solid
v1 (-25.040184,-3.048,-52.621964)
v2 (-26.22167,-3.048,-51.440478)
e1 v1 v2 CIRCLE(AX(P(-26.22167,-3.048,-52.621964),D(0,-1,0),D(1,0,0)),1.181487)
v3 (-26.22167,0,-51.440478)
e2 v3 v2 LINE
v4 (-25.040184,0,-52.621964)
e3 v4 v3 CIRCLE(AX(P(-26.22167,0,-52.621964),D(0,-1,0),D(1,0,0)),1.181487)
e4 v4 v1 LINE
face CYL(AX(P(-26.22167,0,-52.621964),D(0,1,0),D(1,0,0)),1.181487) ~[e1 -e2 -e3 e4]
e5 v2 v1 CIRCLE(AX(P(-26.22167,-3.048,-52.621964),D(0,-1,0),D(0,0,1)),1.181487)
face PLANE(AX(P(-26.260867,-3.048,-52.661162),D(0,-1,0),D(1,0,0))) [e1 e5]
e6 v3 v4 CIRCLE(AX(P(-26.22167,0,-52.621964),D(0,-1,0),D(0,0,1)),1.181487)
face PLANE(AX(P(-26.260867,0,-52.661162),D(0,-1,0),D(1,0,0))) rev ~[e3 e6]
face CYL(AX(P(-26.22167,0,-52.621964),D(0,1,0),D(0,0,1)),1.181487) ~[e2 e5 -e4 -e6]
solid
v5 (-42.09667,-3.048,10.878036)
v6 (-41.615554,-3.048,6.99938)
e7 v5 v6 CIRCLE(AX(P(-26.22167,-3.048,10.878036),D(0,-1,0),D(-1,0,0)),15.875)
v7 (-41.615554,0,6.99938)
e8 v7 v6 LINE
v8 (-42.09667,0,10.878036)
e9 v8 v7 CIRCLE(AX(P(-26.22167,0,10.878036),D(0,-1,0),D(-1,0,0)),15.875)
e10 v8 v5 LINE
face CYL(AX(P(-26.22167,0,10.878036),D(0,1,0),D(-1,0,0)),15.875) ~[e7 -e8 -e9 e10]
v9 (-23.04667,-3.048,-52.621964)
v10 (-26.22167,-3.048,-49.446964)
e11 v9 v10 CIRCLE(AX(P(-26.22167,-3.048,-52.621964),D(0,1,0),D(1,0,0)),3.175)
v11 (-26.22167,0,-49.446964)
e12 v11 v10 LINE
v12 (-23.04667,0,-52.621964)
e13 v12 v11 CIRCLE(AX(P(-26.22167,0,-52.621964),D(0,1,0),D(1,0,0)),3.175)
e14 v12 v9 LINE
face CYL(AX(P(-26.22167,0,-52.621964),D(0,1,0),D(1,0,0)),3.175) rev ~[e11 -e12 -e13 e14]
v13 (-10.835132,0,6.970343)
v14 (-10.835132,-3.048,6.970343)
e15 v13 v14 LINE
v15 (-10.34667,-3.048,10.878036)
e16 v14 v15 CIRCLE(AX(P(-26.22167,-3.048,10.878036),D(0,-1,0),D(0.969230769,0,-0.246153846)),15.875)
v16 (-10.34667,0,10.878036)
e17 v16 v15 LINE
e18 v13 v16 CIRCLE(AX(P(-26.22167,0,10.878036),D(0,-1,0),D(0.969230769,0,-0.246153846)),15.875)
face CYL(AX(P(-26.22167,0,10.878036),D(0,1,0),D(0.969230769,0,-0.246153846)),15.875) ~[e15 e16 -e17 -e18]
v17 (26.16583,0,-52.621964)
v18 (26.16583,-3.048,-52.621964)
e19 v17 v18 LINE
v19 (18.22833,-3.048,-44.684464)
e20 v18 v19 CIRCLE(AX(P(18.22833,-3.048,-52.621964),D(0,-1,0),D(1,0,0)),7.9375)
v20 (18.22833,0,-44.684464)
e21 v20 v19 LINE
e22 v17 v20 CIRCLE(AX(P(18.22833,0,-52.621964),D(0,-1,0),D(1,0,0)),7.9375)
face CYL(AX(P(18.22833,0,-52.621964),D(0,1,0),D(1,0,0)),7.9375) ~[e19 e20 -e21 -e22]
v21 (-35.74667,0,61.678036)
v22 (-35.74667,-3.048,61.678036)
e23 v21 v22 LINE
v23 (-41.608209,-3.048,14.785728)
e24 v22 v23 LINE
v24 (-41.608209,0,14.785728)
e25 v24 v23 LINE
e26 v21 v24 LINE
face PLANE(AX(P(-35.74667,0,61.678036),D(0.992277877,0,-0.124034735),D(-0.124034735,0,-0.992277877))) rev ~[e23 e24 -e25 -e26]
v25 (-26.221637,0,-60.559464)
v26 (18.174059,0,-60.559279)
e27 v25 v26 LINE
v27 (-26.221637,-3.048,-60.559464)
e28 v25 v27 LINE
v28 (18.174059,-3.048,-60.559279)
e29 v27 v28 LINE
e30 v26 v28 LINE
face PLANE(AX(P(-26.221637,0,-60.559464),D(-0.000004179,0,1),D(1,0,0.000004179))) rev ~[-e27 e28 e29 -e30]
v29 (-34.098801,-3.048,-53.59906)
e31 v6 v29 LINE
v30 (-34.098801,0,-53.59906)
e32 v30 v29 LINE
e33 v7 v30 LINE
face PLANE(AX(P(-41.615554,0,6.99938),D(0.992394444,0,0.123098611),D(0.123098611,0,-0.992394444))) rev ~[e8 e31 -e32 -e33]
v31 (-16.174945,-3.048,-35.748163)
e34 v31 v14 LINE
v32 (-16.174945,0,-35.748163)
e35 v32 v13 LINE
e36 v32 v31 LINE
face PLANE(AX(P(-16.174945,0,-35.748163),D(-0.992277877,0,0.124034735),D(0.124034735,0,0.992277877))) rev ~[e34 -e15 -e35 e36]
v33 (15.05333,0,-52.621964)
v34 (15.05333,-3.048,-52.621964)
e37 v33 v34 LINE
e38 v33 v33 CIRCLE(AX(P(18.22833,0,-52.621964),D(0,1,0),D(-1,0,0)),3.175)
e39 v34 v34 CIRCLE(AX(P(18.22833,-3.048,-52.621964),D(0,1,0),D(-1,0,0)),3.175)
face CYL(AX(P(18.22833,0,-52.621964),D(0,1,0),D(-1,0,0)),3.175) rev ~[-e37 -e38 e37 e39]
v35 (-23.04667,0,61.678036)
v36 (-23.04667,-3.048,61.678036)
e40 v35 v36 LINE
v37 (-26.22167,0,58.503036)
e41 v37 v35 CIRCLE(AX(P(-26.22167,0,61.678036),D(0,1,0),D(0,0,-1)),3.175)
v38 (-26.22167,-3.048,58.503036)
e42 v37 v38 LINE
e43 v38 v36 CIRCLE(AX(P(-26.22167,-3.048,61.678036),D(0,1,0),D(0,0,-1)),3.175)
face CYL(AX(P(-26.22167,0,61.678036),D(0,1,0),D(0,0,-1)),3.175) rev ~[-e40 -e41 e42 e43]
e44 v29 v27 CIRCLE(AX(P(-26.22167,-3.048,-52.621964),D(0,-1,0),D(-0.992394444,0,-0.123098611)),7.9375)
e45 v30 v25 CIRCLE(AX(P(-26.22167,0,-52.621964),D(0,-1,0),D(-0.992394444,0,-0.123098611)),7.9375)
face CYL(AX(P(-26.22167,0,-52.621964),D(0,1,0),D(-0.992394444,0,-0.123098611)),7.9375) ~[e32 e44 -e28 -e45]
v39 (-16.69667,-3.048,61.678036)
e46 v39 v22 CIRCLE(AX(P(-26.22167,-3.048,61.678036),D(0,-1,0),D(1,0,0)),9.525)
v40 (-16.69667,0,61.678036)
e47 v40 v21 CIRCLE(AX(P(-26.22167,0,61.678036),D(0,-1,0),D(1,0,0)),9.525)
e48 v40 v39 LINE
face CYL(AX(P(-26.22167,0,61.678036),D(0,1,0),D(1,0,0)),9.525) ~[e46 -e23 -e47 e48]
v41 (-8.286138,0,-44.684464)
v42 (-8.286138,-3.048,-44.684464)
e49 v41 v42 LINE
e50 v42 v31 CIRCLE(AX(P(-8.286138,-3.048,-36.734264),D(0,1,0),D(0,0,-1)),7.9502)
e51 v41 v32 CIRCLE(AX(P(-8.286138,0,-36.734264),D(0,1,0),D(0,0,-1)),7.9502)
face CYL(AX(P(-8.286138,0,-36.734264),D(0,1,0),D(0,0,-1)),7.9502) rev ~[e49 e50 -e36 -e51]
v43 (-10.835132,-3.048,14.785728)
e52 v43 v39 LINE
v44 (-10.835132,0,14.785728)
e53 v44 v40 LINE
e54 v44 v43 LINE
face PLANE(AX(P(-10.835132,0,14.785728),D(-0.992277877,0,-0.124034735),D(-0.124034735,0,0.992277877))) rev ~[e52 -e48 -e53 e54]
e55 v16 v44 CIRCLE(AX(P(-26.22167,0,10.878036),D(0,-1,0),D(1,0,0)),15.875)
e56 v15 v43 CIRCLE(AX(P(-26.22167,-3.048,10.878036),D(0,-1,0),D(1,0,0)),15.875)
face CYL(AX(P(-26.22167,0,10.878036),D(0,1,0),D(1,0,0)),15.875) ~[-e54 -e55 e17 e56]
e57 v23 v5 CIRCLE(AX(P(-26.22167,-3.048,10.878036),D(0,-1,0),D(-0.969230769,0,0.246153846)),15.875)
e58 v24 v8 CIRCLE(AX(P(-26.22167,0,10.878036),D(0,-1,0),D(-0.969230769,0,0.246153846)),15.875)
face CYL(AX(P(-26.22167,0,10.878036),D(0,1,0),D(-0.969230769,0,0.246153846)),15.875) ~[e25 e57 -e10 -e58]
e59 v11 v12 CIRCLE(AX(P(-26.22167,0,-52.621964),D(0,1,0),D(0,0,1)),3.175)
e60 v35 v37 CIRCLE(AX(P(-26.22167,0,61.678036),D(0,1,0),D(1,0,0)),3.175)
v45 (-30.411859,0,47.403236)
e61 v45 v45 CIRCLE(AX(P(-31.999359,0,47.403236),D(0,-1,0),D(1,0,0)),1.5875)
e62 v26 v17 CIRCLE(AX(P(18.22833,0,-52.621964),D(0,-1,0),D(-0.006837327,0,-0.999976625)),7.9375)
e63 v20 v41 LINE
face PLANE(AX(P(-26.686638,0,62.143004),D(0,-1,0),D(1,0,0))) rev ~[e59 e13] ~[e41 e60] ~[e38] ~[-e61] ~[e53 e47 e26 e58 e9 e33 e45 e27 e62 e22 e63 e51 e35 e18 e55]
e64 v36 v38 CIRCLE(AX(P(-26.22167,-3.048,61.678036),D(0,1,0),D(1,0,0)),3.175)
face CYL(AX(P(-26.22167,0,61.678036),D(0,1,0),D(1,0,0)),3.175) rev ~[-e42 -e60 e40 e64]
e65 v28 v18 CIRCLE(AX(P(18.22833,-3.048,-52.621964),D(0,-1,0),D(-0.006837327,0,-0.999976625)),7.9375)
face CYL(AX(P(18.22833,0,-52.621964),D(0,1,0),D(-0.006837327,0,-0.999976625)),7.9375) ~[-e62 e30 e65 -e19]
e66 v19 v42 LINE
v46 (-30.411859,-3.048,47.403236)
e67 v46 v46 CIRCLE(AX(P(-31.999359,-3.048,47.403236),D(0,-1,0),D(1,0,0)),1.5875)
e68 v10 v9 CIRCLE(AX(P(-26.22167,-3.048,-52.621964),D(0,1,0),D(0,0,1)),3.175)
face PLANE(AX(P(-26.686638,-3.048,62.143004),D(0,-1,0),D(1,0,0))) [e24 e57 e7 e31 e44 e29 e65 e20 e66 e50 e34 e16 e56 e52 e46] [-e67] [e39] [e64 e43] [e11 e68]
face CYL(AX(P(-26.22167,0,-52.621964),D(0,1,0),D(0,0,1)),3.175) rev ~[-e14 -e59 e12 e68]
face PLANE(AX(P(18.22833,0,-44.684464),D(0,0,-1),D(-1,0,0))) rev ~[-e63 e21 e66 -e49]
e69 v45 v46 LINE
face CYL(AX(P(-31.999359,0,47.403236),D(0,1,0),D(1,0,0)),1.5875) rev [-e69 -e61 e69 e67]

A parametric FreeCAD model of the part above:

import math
import FreeCAD as App
import Part
import Sketcher
from FreeCAD import Vector
Q = App.Units.Quantity

doc = App.newDocument("Part")
body = doc.addObject("PartDesign::Body", "Body")

sketch1 = doc.addObject("Sketcher::SketchObject", "Sketch")
body.addObject(sketch1)
sketch1.AttachmentSupport = (doc.XZ_Plane, [""])
sketch1.MapMode = "FlatFace"
sketch1.addGeometry([
    Part.ArcOfCircle(Part.Circle(Vector(-26.2, -52.6, 0), Vector(0, 0, 1), 7.9), math.radians(-173), math.radians(-90)),
    Part.LineSegment(Vector(-26.2, -60.6, 0), Vector(18.2, -60.6, 0)),
    Part.ArcOfCircle(Part.Circle(Vector(18.2, -52.6, 0), Vector(0, 0, 1), 7.9), math.radians(-90), math.radians(0)),
    Part.ArcOfCircle(Part.Circle(Vector(18.2, -52.6, 0), Vector(0, 0, 1), 7.9), math.radians(0), math.radians(90)),
    Part.LineSegment(Vector(18.2, -44.7, 0), Vector(-8.3, -44.7, 0)),
    Part.ArcOfCircle(Part.Circle(Vector(-8.3, -36.7, 0), Vector(0, 0, 1), 8), math.radians(173), math.radians(270)),
    Part.LineSegment(Vector(-16.2, -35.7, 0), Vector(-10.8, 7, 0)),
    Part.ArcOfCircle(Part.Circle(Vector(-26.2, 10.9, 0), Vector(0, 0, 1), 15.9), math.radians(-14.25), math.radians(0)),
    Part.ArcOfCircle(Part.Circle(Vector(-26.2, 10.9, 0), Vector(0, 0, 1), 15.9), math.radians(0), math.radians(14.25)),
    Part.LineSegment(Vector(-10.8, 14.8, 0), Vector(-16.7, 61.7, 0)),
    Part.ArcOfCircle(Part.Circle(Vector(-26.2, 61.7, 0), Vector(0, 0, 1), 9.5), math.radians(0), math.radians(180)),
    Part.LineSegment(Vector(-35.7, 61.7, 0), Vector(-41.6, 14.8, 0)),
    Part.ArcOfCircle(Part.Circle(Vector(-26.2, 10.9, 0), Vector(0, 0, 1), 15.9), math.radians(165.75), math.radians(180)),
    Part.ArcOfCircle(Part.Circle(Vector(-26.2, 10.9, 0), Vector(0, 0, 1), 15.9), math.radians(180), math.radians(194.14)),
    Part.LineSegment(Vector(-41.6, 7, 0), Vector(-34.1, -53.6, 0)),
    Part.ArcOfCircle(Part.Circle(Vector(-26.2, -52.6, 0), Vector(0, 0, 1), 3.2), math.radians(90), math.radians(360)),
    Part.ArcOfCircle(Part.Circle(Vector(-26.2, -52.6, 0), Vector(0, 0, 1), 3.2), math.radians(0), math.radians(90)),
    Part.Circle(Vector(18.2, -52.6, 0), Vector(0, 0, 1), 3.2),
    Part.Circle(Vector(-32, 47.4, 0), Vector(0, 0, 1), 1.6),
    Part.ArcOfCircle(Part.Circle(Vector(-26.2, 61.7, 0), Vector(0, 0, 1), 3.2), math.radians(0), math.radians(270)),
    Part.ArcOfCircle(Part.Circle(Vector(-26.2, 61.7, 0), Vector(0, 0, 1), 3.2), math.radians(-90), math.radians(0)),
], False)
sketch1.addConstraint([
    Sketcher.Constraint("Tangent", 0, 2, 1, 1),
    Sketcher.Constraint("Coincident", 1, 2, 2, 1),
    Sketcher.Constraint("Tangent", 2, 2, 3, 1),
    Sketcher.Constraint("Tangent", 3, 2, 4, 1),
    Sketcher.Constraint("Tangent", 4, 2, 5, 2),
    Sketcher.Constraint("Tangent", 5, 1, 6, 1),
    Sketcher.Constraint("Coincident", 6, 2, 7, 1),
    Sketcher.Constraint("Tangent", 7, 2, 8, 1),
    Sketcher.Constraint("Coincident", 8, 2, 9, 1),
    Sketcher.Constraint("Coincident", 9, 2, 10, 1),
    Sketcher.Constraint("Coincident", 10, 2, 11, 1),
    Sketcher.Constraint("Coincident", 11, 2, 12, 1),
    Sketcher.Constraint("Tangent", 12, 2, 13, 1),
    Sketcher.Constraint("Coincident", 13, 2, 14, 1),
    Sketcher.Constraint("Tangent", 14, 2, 0, 1),
    Sketcher.Constraint("Tangent", 15, 1, 16, 2),
    Sketcher.Constraint("Coincident", 16, 1, 15, 2),
    Sketcher.Constraint("Tangent", 19, 1, 20, 2),
    Sketcher.Constraint("Coincident", 20, 1, 19, 2),
    Sketcher.Constraint("Horizontal", 4),
    Sketcher.Constraint("Coincident", 12, 3, 7, 3),
    Sketcher.Constraint("Coincident", 15, 3, 0, 3),
    Sketcher.Constraint("Coincident", 17, 3, 2, 3),
    Sketcher.Constraint("Coincident", 19, 3, 10, 3),
    Sketcher.Constraint("Equal", 0, 2),
    Sketcher.Constraint("Equal", 2, 3),
    Sketcher.Constraint("Equal", 7, 8),
    Sketcher.Constraint("Equal", 8, 12),
    Sketcher.Constraint("Equal", 12, 13),
    Sketcher.Constraint("Equal", 16, 17),
    Sketcher.Constraint("Equal", 17, 19),
    Sketcher.Constraint("Parallel", 6, 11),
    Sketcher.Constraint("Horizontal", 0, 3, 2, 3),
    Sketcher.Constraint("Horizontal", 17, 3, 2, 2),
    Sketcher.Constraint("Horizontal", 13, 3, 7, 2),
    Sketcher.Constraint("Horizontal", 20, 3, 9, 2),
    Sketcher.Constraint("Horizontal", 9, 2, 10, 2),
    Sketcher.Constraint("Horizontal", 8, 2, 11, 2),
    Sketcher.Constraint("Horizontal", 7, 2, 12, 2),
    Sketcher.Constraint("Horizontal", 2, 2, 16, 1),
    Sketcher.Constraint("Horizontal", 10, 2, 19, 1),
    Sketcher.Constraint("Vertical", 0, 3, 7, 3),
    Sketcher.Constraint("Vertical", 8, 3, 10, 3),
    Sketcher.Constraint("Vertical", 6, 2, 8, 2),
    Sketcher.Constraint("Vertical", 20, 3, 15, 1),
    Sketcher.Constraint("Vertical", 15, 1, 20, 1),
    Sketcher.Constraint("Diameter", 17, Q("0.25 in")),
    Sketcher.Constraint("Diameter", 18, Q("0.125 in")),
    Sketcher.Constraint("Radius", 0, Q("0.3125 in")),
    Sketcher.Constraint("Radius", 5, Q("0.313 in")),
    Sketcher.Constraint("Radius", 7, Q("0.625 in")),
    Sketcher.Constraint("Radius", 10, Q("0.375 in")),
    Sketcher.Constraint("DistanceY", 8, 3, 10, 3, Q("2 in")),
    Sketcher.Constraint("DistanceY", 0, 3, 7, 3, Q("2.5 in")),
    Sketcher.Constraint("DistanceX", 0, 3, 2, 3, Q("1.75 in")),
    Sketcher.Constraint("DistanceY", 18, 3, 10, 3, Q("0.562 in")),
    Sketcher.Constraint("DistanceX", 14, 2, -1, 1, Q("34.098801 mm")),
    Sketcher.Constraint("Distance", 6, Q("43.050952 mm")),
    Sketcher.Constraint("DistanceX", 18, 3, -1, 1, Q("31.999359 mm")),
    Sketcher.Constraint("DistanceX", -1, 1, 1, 2, Q("18.174059 mm")),
    Sketcher.Constraint("DistanceY", 1, 2, -1, 1, Q("60.559279 mm")),
    Sketcher.Constraint("DistanceY", -1, 1, 13, 2, Q("6.99938 mm")),
])
pad1 = doc.addObject("PartDesign::Pad", "Pad")
body.addObject(pad1)
pad1.Profile = sketch1
pad1.Length = Q("0.12 in")
body2 = doc.addObject("PartDesign::Body", "Body001")

sketch2 = doc.addObject("Sketcher::SketchObject", "Sketch001")
body2.addObject(sketch2)
sketch2.AttachmentSupport = (doc.getObject("XZ_Plane001"), [""])
sketch2.MapMode = "FlatFace"
sketch2.addGeometry([
    Part.ArcOfCircle(Part.Circle(Vector(-26.2, -52.6, 0), Vector(0, 0, 1), 1.2), math.radians(90), math.radians(360)),
    Part.ArcOfCircle(Part.Circle(Vector(-26.2, -52.6, 0), Vector(0, 0, 1), 1.2), math.radians(0), math.radians(90)),
], False)
sketch2.addConstraint([
    Sketcher.Constraint("Tangent", 0, 1, 1, 2),
    Sketcher.Constraint("Coincident", 1, 1, 0, 2),
    Sketcher.Constraint("Horizontal", 0, 3, 1, 1),
    Sketcher.Constraint("Vertical", 1, 3, 0, 1),
    Sketcher.Constraint("Radius", 0, Q("1.181487 mm")),
    Sketcher.Constraint("DistanceX", 0, 3, -1, 1, Q("26.22167 mm")),
    Sketcher.Constraint("DistanceY", 0, 3, -1, 1, Q("52.621964 mm")),
])
pad2 = doc.addObject("PartDesign::Pad", "Pad001")
body2.addObject(pad2)
pad2.Profile = sketch2
pad2.Length = Q("0.12 in")

doc.recompute()
